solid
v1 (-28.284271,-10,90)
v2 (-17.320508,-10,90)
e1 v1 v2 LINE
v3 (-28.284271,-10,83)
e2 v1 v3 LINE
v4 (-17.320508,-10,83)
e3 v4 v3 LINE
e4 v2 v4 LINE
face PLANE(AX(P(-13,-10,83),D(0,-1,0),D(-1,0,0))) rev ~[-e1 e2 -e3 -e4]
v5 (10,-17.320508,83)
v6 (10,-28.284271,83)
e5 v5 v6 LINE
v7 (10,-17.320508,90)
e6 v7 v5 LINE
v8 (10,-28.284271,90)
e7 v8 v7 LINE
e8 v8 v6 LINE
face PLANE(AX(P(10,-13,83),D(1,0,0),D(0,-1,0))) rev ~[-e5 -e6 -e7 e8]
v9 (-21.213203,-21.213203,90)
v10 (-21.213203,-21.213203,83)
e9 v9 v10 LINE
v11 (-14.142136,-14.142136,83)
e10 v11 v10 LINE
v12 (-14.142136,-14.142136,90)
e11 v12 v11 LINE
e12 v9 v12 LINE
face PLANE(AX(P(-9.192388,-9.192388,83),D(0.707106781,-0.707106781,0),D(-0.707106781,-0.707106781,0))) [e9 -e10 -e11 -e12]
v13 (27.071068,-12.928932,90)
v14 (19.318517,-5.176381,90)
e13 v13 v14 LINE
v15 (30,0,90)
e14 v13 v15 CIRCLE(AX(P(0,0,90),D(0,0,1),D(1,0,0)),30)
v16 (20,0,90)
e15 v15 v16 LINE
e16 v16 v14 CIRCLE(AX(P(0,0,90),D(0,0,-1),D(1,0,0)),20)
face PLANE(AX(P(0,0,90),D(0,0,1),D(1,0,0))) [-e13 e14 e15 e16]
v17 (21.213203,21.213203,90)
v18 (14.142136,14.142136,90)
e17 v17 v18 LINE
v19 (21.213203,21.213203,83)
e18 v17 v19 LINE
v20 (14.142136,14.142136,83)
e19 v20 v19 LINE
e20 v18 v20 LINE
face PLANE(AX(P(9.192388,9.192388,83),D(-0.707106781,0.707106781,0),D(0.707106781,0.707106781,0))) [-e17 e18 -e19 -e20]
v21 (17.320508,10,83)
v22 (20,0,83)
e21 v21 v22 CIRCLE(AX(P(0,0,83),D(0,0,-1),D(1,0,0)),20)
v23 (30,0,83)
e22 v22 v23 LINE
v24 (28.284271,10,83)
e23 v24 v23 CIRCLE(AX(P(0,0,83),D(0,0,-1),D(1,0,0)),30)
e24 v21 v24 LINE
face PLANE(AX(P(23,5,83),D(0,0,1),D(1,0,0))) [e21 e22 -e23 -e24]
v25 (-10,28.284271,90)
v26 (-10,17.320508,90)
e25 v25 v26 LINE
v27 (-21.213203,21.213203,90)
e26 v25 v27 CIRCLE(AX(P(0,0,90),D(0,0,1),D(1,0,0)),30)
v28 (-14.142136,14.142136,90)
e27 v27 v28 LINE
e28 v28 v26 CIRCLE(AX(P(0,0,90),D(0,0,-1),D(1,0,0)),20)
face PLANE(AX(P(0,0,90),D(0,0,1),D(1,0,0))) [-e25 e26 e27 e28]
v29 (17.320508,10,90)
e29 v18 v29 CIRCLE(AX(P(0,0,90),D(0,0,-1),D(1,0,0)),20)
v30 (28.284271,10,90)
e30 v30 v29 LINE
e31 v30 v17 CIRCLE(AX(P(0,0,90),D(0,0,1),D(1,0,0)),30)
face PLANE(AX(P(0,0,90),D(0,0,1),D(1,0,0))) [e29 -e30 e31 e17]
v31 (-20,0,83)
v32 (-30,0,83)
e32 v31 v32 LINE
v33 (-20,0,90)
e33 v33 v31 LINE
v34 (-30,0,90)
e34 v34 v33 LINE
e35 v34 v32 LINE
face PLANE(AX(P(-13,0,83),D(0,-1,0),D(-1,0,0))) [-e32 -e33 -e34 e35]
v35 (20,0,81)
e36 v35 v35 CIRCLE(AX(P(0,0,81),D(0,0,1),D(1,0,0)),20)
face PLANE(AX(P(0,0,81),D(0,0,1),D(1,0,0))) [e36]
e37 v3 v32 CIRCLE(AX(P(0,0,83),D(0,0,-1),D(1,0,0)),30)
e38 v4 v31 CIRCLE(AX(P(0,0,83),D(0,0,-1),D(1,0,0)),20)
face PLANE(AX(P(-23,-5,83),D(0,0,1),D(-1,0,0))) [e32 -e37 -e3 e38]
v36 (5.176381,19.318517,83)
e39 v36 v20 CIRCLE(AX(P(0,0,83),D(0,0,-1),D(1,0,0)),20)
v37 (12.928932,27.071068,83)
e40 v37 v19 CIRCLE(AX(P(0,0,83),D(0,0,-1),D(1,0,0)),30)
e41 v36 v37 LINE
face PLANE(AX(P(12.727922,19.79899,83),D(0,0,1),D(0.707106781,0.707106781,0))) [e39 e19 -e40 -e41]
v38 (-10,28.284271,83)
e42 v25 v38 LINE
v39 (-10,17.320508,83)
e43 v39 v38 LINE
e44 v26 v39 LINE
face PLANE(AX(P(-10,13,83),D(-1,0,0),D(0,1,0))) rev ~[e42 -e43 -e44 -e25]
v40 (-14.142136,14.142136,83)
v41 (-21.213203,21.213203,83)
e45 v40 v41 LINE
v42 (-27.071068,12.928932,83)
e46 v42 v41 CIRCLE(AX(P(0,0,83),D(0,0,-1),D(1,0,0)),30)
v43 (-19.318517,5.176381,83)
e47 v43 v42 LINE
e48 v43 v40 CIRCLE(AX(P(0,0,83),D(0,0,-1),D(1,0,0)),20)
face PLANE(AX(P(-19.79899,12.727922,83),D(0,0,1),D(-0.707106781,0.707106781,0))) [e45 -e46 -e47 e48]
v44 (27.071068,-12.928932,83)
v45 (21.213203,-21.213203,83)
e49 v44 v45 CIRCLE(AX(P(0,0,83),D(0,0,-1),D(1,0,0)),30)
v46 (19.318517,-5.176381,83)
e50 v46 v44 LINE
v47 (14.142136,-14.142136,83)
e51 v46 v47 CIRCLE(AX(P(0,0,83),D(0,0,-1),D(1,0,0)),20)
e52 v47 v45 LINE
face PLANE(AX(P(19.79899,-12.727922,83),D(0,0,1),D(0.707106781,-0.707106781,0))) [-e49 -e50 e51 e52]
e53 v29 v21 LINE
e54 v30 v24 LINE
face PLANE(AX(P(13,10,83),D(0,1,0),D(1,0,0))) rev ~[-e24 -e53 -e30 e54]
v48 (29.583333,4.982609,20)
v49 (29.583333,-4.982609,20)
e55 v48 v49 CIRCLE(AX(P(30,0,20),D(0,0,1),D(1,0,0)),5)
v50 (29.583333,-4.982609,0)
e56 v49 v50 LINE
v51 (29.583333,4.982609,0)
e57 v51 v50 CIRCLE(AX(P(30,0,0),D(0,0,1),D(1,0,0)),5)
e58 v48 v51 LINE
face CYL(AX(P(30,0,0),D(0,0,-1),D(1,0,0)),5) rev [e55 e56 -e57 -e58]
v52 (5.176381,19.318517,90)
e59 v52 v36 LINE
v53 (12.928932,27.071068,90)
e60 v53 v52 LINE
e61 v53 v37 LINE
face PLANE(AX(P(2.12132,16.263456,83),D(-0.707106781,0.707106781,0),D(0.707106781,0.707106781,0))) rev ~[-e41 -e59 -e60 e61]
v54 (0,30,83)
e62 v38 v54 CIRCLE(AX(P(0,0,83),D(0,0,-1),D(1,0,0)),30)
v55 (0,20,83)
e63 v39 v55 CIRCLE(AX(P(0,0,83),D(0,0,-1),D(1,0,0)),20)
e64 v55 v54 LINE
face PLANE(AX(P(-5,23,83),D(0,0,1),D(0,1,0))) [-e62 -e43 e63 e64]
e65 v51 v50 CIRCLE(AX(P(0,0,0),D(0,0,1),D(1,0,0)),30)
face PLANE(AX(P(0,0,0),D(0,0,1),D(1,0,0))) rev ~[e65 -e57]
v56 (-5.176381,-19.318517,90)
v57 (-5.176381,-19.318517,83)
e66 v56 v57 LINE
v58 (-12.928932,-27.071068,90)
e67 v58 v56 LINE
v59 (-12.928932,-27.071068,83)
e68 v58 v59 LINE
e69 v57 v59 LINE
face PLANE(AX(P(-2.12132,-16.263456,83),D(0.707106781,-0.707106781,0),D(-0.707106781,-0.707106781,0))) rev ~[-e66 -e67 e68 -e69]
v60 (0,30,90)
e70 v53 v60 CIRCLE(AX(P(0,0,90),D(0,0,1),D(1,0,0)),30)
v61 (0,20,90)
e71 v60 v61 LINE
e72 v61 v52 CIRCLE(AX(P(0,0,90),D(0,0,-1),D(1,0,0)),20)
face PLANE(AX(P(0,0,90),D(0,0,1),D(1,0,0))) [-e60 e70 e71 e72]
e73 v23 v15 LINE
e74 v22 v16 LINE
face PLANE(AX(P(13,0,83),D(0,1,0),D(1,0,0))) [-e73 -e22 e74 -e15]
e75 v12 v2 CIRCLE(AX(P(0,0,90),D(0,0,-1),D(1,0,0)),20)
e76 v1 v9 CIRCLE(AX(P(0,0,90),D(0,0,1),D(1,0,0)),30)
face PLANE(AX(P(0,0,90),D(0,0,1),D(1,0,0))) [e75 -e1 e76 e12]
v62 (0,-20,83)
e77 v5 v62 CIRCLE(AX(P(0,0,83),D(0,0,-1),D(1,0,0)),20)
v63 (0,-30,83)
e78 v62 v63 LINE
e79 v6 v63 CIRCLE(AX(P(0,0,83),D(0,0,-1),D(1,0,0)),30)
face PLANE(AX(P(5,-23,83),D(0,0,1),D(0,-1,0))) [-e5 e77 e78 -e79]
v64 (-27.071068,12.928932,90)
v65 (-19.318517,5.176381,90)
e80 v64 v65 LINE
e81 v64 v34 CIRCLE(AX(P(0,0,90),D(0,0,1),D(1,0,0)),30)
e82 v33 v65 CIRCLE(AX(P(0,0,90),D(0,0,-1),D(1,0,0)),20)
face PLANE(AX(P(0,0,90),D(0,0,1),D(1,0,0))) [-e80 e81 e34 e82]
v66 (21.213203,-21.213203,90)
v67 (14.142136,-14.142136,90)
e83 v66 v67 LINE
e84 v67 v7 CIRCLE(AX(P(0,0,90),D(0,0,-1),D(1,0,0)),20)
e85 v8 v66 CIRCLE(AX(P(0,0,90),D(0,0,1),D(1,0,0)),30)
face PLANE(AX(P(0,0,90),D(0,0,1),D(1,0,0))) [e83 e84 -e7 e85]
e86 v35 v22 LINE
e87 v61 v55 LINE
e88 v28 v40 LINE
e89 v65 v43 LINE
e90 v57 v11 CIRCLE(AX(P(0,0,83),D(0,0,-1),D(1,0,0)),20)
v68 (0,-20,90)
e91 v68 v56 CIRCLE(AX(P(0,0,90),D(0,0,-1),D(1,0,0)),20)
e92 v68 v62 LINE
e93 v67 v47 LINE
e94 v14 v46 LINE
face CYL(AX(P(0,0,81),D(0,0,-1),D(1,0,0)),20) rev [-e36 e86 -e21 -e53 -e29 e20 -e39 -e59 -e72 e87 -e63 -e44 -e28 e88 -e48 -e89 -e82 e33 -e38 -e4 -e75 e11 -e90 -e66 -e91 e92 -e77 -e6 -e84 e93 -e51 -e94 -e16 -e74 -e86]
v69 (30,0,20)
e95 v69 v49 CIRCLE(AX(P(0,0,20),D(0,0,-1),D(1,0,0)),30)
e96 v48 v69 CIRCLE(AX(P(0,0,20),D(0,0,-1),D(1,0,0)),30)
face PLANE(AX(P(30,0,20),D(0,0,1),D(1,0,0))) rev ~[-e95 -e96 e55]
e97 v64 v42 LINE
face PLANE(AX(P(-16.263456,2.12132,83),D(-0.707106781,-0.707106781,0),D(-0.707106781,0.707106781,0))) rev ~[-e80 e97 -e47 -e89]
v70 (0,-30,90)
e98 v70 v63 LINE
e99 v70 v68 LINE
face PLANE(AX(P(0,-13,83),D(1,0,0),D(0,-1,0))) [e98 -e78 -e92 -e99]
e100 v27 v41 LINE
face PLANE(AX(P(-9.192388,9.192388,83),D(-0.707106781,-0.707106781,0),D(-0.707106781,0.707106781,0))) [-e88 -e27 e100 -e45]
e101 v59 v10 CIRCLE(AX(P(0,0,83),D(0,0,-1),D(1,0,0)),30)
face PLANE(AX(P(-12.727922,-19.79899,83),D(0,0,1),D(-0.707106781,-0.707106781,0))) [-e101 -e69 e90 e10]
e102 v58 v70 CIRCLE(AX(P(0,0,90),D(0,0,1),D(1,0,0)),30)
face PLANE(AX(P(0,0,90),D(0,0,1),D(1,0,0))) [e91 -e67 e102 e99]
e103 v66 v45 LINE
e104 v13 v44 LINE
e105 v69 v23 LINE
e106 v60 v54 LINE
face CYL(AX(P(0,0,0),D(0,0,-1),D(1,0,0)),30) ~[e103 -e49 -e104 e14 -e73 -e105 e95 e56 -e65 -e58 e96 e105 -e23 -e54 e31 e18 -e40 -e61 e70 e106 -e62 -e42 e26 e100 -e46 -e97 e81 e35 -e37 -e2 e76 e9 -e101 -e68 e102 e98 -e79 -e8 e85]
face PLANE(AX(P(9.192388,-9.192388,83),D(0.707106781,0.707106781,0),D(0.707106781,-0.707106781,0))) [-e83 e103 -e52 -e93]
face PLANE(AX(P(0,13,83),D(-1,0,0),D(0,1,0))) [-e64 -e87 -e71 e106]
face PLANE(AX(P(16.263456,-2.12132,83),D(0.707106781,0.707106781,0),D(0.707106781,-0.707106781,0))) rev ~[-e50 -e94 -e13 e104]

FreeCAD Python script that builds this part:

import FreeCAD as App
import Part
import Sketcher

V = App.Vector


def add_polygon(sketch, points):
    """Adds a closed chain of lines whose ends are joined by coincident constraints."""
    first, n = sketch.GeometryCount, len(points)
    for a, b in zip(points, points[1:] + points[:1]):
        sketch.addGeometry(Part.LineSegment(App.Vector(*a, 0), App.Vector(*b, 0)), False)
    for i in range(n):
        sketch.addConstraint(Sketcher.Constraint("Coincident", first + i, 2, first + (i + 1) % n, 1))

doc = App.newDocument("Part")
body = doc.addObject("PartDesign::Body", "Body")

sketch1 = body.newObject("Sketcher::SketchObject", "Sketch")
sketch1.AttachmentSupport = (doc.getObject("XY_Plane"), [""])
sketch1.MapMode = "FlatFace"
sketch1.addGeometry(Part.Circle(V(30, 0, 0), V(0, 0, 1), 5), False)
sketch1.addConstraint([
    Sketcher.Constraint("PointOnObject", 0, 3, -1),
    Sketcher.Constraint("Diameter", 0, 10.0),
    Sketcher.Constraint("DistanceX", -1, 1, 0, 3, 30.0),
])
pad1 = body.newObject("PartDesign::Pad", "Pad")
pad1.Profile = sketch1
pad1.Length = 20
body2 = doc.addObject("PartDesign::Body", "Body001")

sketch2 = body2.newObject("Sketcher::SketchObject", "Sketch001")
sketch2.AttachmentSupport = (doc.getObject("XY_Plane001"), [""])
sketch2.MapMode = "FlatFace"
sketch2.AttachmentOffset = App.Placement(V(0, 0, 83), App.Rotation())
add_polygon(sketch2, [(13, 10), (13, 0), (33, 0), (33, 10)])
sketch2.addConstraint([
    Sketcher.Constraint("Vertical", 0),
    Sketcher.Constraint("Horizontal", 1),
    Sketcher.Constraint("Vertical", 2),
    Sketcher.Constraint("Horizontal", 3),
    Sketcher.Constraint("PointOnObject", 0, 2, -1),
    Sketcher.Constraint("DistanceX", 1, 1, 1, 2, 20.0),
    Sketcher.Constraint("DistanceY", 0, 2, 0, 1, 10.0),
    Sketcher.Constraint("DistanceX", -1, 1, 0, 2, 13.0),
])
pad2 = body2.newObject("PartDesign::Pad", "Pad001")
pad2.Profile = sketch2
pad2.Length = 10
body3 = doc.addObject("PartDesign::Body", "Body002")
body3.AllowCompound = True
doc.recompute()

body3.BaseFeature = body2
doc.recompute()

body4 = doc.addObject("PartDesign::Body", "Body003")
body4.BaseFeature = body2
body4.Placement = App.Placement(V(0, 0, 0), App.Rotation(V(0, 0, 1), 45))
boolean = body3.newObject("PartDesign::Boolean", "Boolean")
boolean.Type = "Fuse"
boolean.addObjects([body4])
doc.recompute()

body5 = doc.addObject("PartDesign::Body", "Body004")
body5.BaseFeature = body2
body5.Placement = App.Placement(V(0, 0, 0), App.Rotation(V(0, 0, 1), 90))
boolean2 = body3.newObject("PartDesign::Boolean", "Boolean001")
boolean2.Type = "Fuse"
boolean2.addObjects([body5])
doc.recompute()

body6 = doc.addObject("PartDesign::Body", "Body005")
body6.BaseFeature = body2
body6.Placement = App.Placement(V(0, 0, 0), App.Rotation(V(0, 0, 1), 135))
boolean3 = body3.newObject("PartDesign::Boolean", "Boolean002")
boolean3.Type = "Fuse"
boolean3.addObjects([body6])
doc.recompute()

body7 = doc.addObject("PartDesign::Body", "Body006")
body7.BaseFeature = body2
body7.Placement = App.Placement(V(0, 0, 0), App.Rotation(V(0, 0, 1), 180))
boolean4 = body3.newObject("PartDesign::Boolean", "Boolean003")
boolean4.Type = "Fuse"
boolean4.addObjects([body7])
doc.recompute()

body8 = doc.addObject("PartDesign::Body", "Body007")
body8.BaseFeature = body2
body8.Placement = App.Placement(V(0, 0, 0), App.Rotation(V(0, 0, 1), 225))
boolean5 = body3.newObject("PartDesign::Boolean", "Boolean004")
boolean5.Type = "Fuse"
boolean5.addObjects([body8])
doc.recompute()

body9 = doc.addObject("PartDesign::Body", "Body008")
body9.BaseFeature = body2
body9.Placement = App.Placement(V(0, 0, 0), App.Rotation(V(0, 0, 1), 270))
boolean6 = body3.newObject("PartDesign::Boolean", "Boolean005")
boolean6.Type = "Fuse"
boolean6.addObjects([body9])
doc.recompute()

body2.Placement = App.Placement(V(0, 0, 0), App.Rotation(V(0, 0, 1), 315))
boolean7 = body3.newObject("PartDesign::Boolean", "Boolean006")
boolean7.Type = "Fuse"
boolean7.addObjects([body2])
body10 = doc.addObject("PartDesign::Body", "Body009")

sketch3 = body10.newObject("Sketcher::SketchObject", "Sketch002")
sketch3.AttachmentSupport = (doc.getObject("XY_Plane009"), [""])
sketch3.MapMode = "FlatFace"
sketch3.AttachmentOffset = App.Placement(V(0, 0, 81), App.Rotation())
sketch3.addGeometry(Part.Circle(V(0, 0, 0), V(0, 0, 1), 20), False)
sketch3.addConstraint([
    Sketcher.Constraint("Coincident", 0, 3, -1, 1),
    Sketcher.Constraint("Diameter", 0, 40.0),
])
pad3 = body10.newObject("PartDesign::Pad", "Pad002")
pad3.Profile = sketch3
pad3.Length = 10
body11 = doc.addObject("PartDesign::Body", "Body010")

sketch4 = body11.newObject("Sketcher::SketchObject", "Sketch003")
sketch4.AttachmentSupport = (doc.getObject("XY_Plane010"), [""])
sketch4.MapMode = "FlatFace"
sketch4.addGeometry(Part.Circle(V(0, 0, 0), V(0, 0, 1), 30), False)
sketch4.addConstraint([
    Sketcher.Constraint("Coincident", 0, 3, -1, 1),
    Sketcher.Constraint("Diameter", 0, 60.0),
])
pad4 = body11.newObject("PartDesign::Pad", "Pad003")
pad4.Profile = sketch4
pad4.Length = 90
doc.recompute()

boolean8 = body11.newObject("PartDesign::Boolean", "Boolean007")
boolean8.Type = "Cut"
boolean8.addObjects([body10])
doc.recompute()

boolean9 = body11.newObject("PartDesign::Boolean", "Boolean008")
boolean9.Type = "Cut"
boolean9.addObjects([body3])
doc.recompute()

boolean10 = body11.newObject("PartDesign::Boolean", "Boolean009")
boolean10.Type = "Cut"
boolean10.addObjects([body])

doc.recompute()
